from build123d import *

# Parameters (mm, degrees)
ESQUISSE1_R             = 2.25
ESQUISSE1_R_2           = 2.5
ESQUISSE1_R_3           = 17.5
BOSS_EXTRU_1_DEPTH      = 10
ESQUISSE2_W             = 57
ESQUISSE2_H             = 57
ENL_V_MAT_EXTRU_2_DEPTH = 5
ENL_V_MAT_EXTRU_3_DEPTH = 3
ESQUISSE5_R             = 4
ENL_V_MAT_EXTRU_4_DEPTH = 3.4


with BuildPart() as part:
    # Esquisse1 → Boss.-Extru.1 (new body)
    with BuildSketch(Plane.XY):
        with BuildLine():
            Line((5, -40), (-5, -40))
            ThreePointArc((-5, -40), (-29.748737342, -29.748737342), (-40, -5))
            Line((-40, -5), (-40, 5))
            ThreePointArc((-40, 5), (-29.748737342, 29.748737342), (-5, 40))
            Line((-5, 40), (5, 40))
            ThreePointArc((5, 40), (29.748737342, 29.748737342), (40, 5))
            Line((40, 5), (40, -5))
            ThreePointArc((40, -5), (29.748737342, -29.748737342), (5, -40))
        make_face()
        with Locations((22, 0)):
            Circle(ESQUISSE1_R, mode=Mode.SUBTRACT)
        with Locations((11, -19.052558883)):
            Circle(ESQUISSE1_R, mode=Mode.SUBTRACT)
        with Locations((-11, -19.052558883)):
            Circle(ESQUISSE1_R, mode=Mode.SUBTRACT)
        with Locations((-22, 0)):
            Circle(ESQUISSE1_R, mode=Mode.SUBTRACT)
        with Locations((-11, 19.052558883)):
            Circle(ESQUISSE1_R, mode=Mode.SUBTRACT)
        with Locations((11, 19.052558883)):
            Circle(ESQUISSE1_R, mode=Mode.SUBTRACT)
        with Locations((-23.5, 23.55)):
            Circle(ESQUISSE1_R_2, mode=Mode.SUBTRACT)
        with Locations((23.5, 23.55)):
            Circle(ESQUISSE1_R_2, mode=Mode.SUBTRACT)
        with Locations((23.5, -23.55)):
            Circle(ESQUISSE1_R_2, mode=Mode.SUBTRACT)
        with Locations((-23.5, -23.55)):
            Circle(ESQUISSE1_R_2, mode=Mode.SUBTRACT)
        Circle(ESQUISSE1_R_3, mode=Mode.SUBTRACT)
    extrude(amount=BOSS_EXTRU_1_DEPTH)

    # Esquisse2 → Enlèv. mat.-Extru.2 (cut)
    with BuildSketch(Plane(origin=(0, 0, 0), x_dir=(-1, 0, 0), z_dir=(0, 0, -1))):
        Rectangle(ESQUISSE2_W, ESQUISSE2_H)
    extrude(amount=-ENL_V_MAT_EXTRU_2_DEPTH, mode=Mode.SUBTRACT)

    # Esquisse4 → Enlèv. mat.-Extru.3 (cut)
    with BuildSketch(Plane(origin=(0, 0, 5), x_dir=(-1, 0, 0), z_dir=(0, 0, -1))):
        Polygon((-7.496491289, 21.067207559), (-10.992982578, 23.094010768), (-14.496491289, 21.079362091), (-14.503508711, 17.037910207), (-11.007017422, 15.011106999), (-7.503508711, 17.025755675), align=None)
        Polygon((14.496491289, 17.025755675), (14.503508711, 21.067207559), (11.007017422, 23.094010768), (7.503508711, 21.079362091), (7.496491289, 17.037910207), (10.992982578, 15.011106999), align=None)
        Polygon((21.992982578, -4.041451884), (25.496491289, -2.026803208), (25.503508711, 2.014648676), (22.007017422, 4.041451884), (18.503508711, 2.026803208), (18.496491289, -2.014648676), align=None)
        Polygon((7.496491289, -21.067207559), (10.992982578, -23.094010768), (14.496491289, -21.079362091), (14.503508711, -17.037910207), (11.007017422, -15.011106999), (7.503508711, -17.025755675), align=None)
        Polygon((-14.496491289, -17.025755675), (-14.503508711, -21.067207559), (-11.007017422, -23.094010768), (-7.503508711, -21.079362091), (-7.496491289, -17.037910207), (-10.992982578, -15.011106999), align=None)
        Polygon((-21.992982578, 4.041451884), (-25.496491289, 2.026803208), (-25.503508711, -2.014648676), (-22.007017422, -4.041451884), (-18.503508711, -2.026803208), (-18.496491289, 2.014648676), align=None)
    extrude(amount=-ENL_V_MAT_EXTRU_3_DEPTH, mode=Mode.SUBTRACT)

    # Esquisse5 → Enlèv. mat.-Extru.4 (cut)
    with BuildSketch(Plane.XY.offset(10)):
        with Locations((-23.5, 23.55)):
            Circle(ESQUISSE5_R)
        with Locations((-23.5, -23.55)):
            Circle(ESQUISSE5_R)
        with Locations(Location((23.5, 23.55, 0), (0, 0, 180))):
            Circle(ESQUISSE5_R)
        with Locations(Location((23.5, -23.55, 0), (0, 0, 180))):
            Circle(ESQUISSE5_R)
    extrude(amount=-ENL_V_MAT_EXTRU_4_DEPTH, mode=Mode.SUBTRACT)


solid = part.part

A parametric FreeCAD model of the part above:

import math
import FreeCAD as App
import Part
import Sketcher
Q = App.Units.Quantity


def add_polygon(sketch, points):
    """Adds a closed chain of lines whose ends are joined by coincident constraints."""
    first, n = sketch.GeometryCount, len(points)
    for a, b in zip(points, points[1:] + points[:1]):
        sketch.addGeometry(Part.LineSegment(App.Vector(*a, 0), App.Vector(*b, 0)), False)
    for i in range(n):
        sketch.addConstraint(Sketcher.Constraint("Coincident", first + i, 2, first + (i + 1) % n, 1))

doc = App.newDocument("Part")
body = doc.addObject("PartDesign::Body", "Body")

sketch1 = body.newObject("Sketcher::SketchObject", "Sketch")
sketch1.AttachmentSupport = (doc.getObject("XY_Plane"), [""])
sketch1.MapMode = "FlatFace"
sketch1.addGeometry([
    Part.LineSegment(App.Vector(-5, -40, 0), App.Vector(5, -40, 0)),
    Part.ArcOfCircle(Part.Circle(App.Vector(5, -5, 0), App.Vector(0, 0, 1), 35), math.radians(-90), math.radians(0)),
    Part.LineSegment(App.Vector(40, -5, 0), App.Vector(40, 5, 0)),
    Part.ArcOfCircle(Part.Circle(App.Vector(5, 5, 0), App.Vector(0, 0, 1), 35), math.radians(0), math.radians(90)),
    Part.LineSegment(App.Vector(5, 40, 0), App.Vector(-5, 40, 0)),
    Part.ArcOfCircle(Part.Circle(App.Vector(-5, 5, 0), App.Vector(0, 0, 1), 35), math.radians(90), math.radians(180)),
    Part.LineSegment(App.Vector(-40, 5, 0), App.Vector(-40, -5, 0)),
    Part.ArcOfCircle(Part.Circle(App.Vector(-5, -5, 0), App.Vector(0, 0, 1), 35), math.radians(180), math.radians(270)),
    Part.Circle(App.Vector(23.5, -23.6, 0), App.Vector(0, 0, 1), 2.5),
    Part.Circle(App.Vector(11, -19.1, 0), App.Vector(0, 0, 1), 2.2),
    Part.Circle(App.Vector(-11, -19.1, 0), App.Vector(0, 0, 1), 2.2),
    Part.Circle(App.Vector(-23.5, -23.6, 0), App.Vector(0, 0, 1), 2.5),
    Part.Circle(App.Vector(22, 0, 0), App.Vector(0, 0, 1), 2.2),
    Part.Circle(App.Vector(23.5, 23.6, 0), App.Vector(0, 0, 1), 2.5),
    Part.Circle(App.Vector(11, 19.1, 0), App.Vector(0, 0, 1), 2.2),
    Part.Circle(App.Vector(0, 0, 0), App.Vector(0, 0, 1), 17.5),
    Part.Circle(App.Vector(-22, 0, 0), App.Vector(0, 0, 1), 2.2),
    Part.Circle(App.Vector(-11, 19.1, 0), App.Vector(0, 0, 1), 2.2),
    Part.Circle(App.Vector(-23.5, 23.6, 0), App.Vector(0, 0, 1), 2.5),
], False)
sketch1.addConstraint([
    Sketcher.Constraint("Tangent", 0, 2, 1, 1),
    Sketcher.Constraint("Tangent", 1, 2, 2, 1),
    Sketcher.Constraint("Tangent", 2, 2, 3, 1),
    Sketcher.Constraint("Tangent", 3, 2, 4, 1),
    Sketcher.Constraint("Tangent", 4, 2, 5, 1),
    Sketcher.Constraint("Tangent", 5, 2, 6, 1),
    Sketcher.Constraint("Tangent", 6, 2, 7, 1),
    Sketcher.Constraint("Tangent", 7, 2, 0, 1),
    Sketcher.Constraint("Horizontal", 0),
    Sketcher.Constraint("Vertical", 2),
    Sketcher.Constraint("Horizontal", 4),
    Sketcher.Constraint("Vertical", 6),
    Sketcher.Constraint("Coincident", 15, 3, -1, 1),
    Sketcher.Constraint("Equal", 1, 3),
    Sketcher.Constraint("Equal", 3, 5),
    Sketcher.Constraint("Equal", 5, 7),
    Sketcher.Constraint("Equal", 9, 10),
    Sketcher.Constraint("Equal", 8, 11),
    Sketcher.Constraint("Equal", 10, 12),
    Sketcher.Constraint("Equal", 11, 13),
    Sketcher.Constraint("Equal", 12, 14),
    Sketcher.Constraint("Equal", 14, 16),
    Sketcher.Constraint("Equal", 16, 17),
    Sketcher.Constraint("Equal", 13, 18),
    Sketcher.Constraint("Symmetric", 1, 3, 5, 3, -1, 1),
    Sketcher.Constraint("Symmetric", 11, 3, 13, 3, -1, 1),
    Sketcher.Constraint("Symmetric", 10, 3, 14, 3, -1, 1),
    Sketcher.Constraint("Symmetric", 12, 3, 16, 3, -1, 1),
    Sketcher.Constraint("Symmetric", 9, 3, 17, 3, -1, 1),
    Sketcher.Constraint("Symmetric", 8, 3, 18, 3, -1, 1),
    Sketcher.Constraint("Symmetric", 9, 3, 10, 3, -2),
    Sketcher.Constraint("Symmetric", 8, 3, 11, 3, -2),
    Sketcher.Constraint("PointOnObject", 12, 3, -1),
    Sketcher.Constraint("Equal", 4, 2),
    Sketcher.Constraint("Diameter", 8, Q("5 mm")),
    Sketcher.Constraint("Diameter", 15, Q("35 mm")),
    Sketcher.Constraint("Radius", 1, Q("35 mm")),
    Sketcher.Constraint("Diameter", 9, Q("4.5 mm")),
    Sketcher.Constraint("DistanceX", 0, 1, 0, 2, Q("10 mm")),
    Sketcher.Constraint("DistanceX", -1, 1, 9, 3, Q("11 mm")),
    Sketcher.Constraint("DistanceX", -1, 1, 12, 3, Q("22 mm")),
    Sketcher.Constraint("DistanceX", -1, 1, 8, 3, Q("23.5 mm")),
    Sketcher.Constraint("DistanceY", 8, 3, -1, 1, Q("23.55 mm")),
    Sketcher.Constraint("DistanceY", 9, 3, -1, 1, Q("19.052559 mm")),
])
pad1 = body.newObject("PartDesign::Pad", "Pad")
pad1.Profile = sketch1
pad1.Length = 10

sketch2 = body.newObject("Sketcher::SketchObject", "Sketch001")
sketch2.AttachmentSupport = (doc.getObject("XY_Plane"), [""])
sketch2.MapMode = "FlatFace"
add_polygon(sketch2, [(28, 28), (28, -28), (-28, -28), (-28, 28)])
sketch2.addConstraint([
    Sketcher.Constraint("Vertical", 0),
    Sketcher.Constraint("Horizontal", 1),
    Sketcher.Constraint("Vertical", 2),
    Sketcher.Constraint("Horizontal", 3),
    Sketcher.Constraint("Symmetric", 0, 2, 2, 2, -1, 1),
    Sketcher.Constraint("Equal", 3, 0),
    Sketcher.Constraint("DistanceX", 1, 2, 1, 1, Q("57 mm")),
])
pocket1 = body.newObject("PartDesign::Pocket", "Pocket")
pocket1.Profile = sketch2
pocket1.Length = 5
pocket1.Reversed = True

sketch3 = body.newObject("Sketcher::SketchObject", "Sketch002")
sketch3.AttachmentSupport = (doc.getObject("XY_Plane"), [""])
sketch3.MapMode = "FlatFace"
sketch3.AttachmentOffset = App.Placement(App.Vector(0, 0, 5), App.Rotation())
add_polygon(sketch3, [(7.5, 21.1), (11, 23.1), (14.5, 21.1), (14.5, 17), (11, 15), (7.5, 17)])
add_polygon(sketch3, [(-14.5, 17), (-14.5, 21.1), (-11, 23.1), (-7.5, 21.1), (-7.5, 17), (-11, 15)])
add_polygon(sketch3, [(-22, -4), (-25.5, -2), (-25.5, 2), (-22, 4), (-18.5, 2), (-18.5, -2)])
add_polygon(sketch3, [(-7.5, -21.1), (-11, -23.1), (-14.5, -21.1), (-14.5, -17), (-11, -15), (-7.5, -17)])
add_polygon(sketch3, [(14.5, -17), (14.5, -21.1), (11, -23.1), (7.5, -21.1), (7.5, -17), (11, -15)])
add_polygon(sketch3, [(22, 4), (25.5, 2), (25.5, -2), (22, -4), (18.5, -2), (18.5, 2)])
sketch3.addConstraint([
    Sketcher.Constraint("Symmetric", 0, 2, 18, 2, -1, 1),
    Sketcher.Constraint("Symmetric", 1, 2, 19, 2, -1, 1),
    Sketcher.Constraint("Symmetric", 2, 2, 20, 2, -1, 1),
    Sketcher.Constraint("Symmetric", 3, 2, 21, 2, -1, 1),
    Sketcher.Constraint("Symmetric", 4, 2, 22, 2, -1, 1),
    Sketcher.Constraint("Symmetric", 5, 2, 23, 2, -1, 1),
    Sketcher.Constraint("Symmetric", 6, 2, 24, 2, -1, 1),
    Sketcher.Constraint("Symmetric", 7, 2, 25, 2, -1, 1),
    Sketcher.Constraint("Symmetric", 8, 2, 26, 2, -1, 1),
    Sketcher.Constraint("Symmetric", 9, 2, 27, 2, -1, 1),
    Sketcher.Constraint("Symmetric", 10, 2, 28, 2, -1, 1),
    Sketcher.Constraint("Symmetric", 11, 2, 29, 2, -1, 1),
    Sketcher.Constraint("Symmetric", 12, 2, 30, 2, -1, 1),
    Sketcher.Constraint("Symmetric", 13, 2, 31, 2, -1, 1),
    Sketcher.Constraint("Symmetric", 14, 2, 32, 2, -1, 1),
    Sketcher.Constraint("Symmetric", 15, 2, 33, 2, -1, 1),
    Sketcher.Constraint("Symmetric", 16, 2, 34, 2, -1, 1),
    Sketcher.Constraint("Symmetric", 17, 2, 35, 2, -1, 1),
    Sketcher.Constraint("Parallel", 0, 3),
    Sketcher.Constraint("Parallel", 1, 4),
    Sketcher.Constraint("Parallel", 2, 5),
    Sketcher.Constraint("Parallel", 5, 6),
    Sketcher.Constraint("Parallel", 3, 7),
    Sketcher.Constraint("Parallel", 4, 8),
    Sketcher.Constraint("Parallel", 6, 9),
    Sketcher.Constraint("Parallel", 7, 10),
    Sketcher.Constraint("Parallel", 8, 11),
    Sketcher.Constraint("Parallel", 11, 12),
    Sketcher.Constraint("Parallel", 9, 13),
    Sketcher.Constraint("Parallel", 10, 14),
    Sketcher.Constraint("Parallel", 12, 15),
    Sketcher.Constraint("Parallel", 13, 16),
    Sketcher.Constraint("Parallel", 14, 17),
    Sketcher.Constraint("Horizontal", 5, 2, 6, 2),
    Sketcher.Constraint("Horizontal", 0, 2, 7, 2),
    Sketcher.Constraint("Horizontal", 1, 2, 8, 2),
    Sketcher.Constraint("Horizontal", 2, 2, 9, 2),
    Sketcher.Constraint("Horizontal", 3, 2, 10, 2),
    Sketcher.Constraint("Horizontal", 15, 2, 30, 2),
    Sketcher.Constraint("Horizontal", 16, 2, 31, 2),
    Sketcher.Constraint("Vertical", 10, 2, 18, 2),
    Sketcher.Constraint("Vertical", 11, 2, 19, 2),
    Sketcher.Constraint("Equal", 0, 1),
    Sketcher.Constraint("Equal", 1, 2),
    Sketcher.Constraint("Equal", 11, 12),
    Sketcher.Constraint("Equal", 12, 13),
    Sketcher.Constraint("Equal", 13, 14),
    Sketcher.Constraint("DistanceX", 4, 2, 2, 2, Q("7 mm")),
    Sketcher.Constraint("DistanceX", 6, 2, 5, 2, Q("22 mm")),
    Sketcher.Constraint("DistanceX", 12, 2, 11, 2, Q("11 mm")),
    Sketcher.Constraint("DistanceY", 2, 2, 0, 2, Q("6.056101 mm")),
    Sketcher.Constraint("DistanceY", -1, 1, 0, 2, Q("23.094011 mm")),
    Sketcher.Constraint("DistanceX", -1, 1, 1, 2, Q("14.496491 mm")),
    Sketcher.Constraint("DistanceY", -1, 1, 13, 2, Q("2.014649 mm")),
])
pocket2 = body.newObject("PartDesign::Pocket", "Pocket001")
pocket2.Profile = sketch3
pocket2.Length = 3
pocket2.Reversed = True

sketch4 = body.newObject("Sketcher::SketchObject", "Sketch003")
sketch4.AttachmentSupport = (doc.getObject("XY_Plane"), [""])
sketch4.MapMode = "FlatFace"
sketch4.AttachmentOffset = App.Placement(App.Vector(0, 0, 10), App.Rotation())
sketch4.addGeometry([
    Part.Circle(App.Vector(-23.5, 23.6, 0), App.Vector(0, 0, 1), 4),
    Part.Circle(App.Vector(-23.5, -23.6, 0), App.Vector(0, 0, 1), 4),
    Part.Circle(App.Vector(23.5, 23.6, 0), App.Vector(0, 0, 1), 4),
    Part.Circle(App.Vector(23.5, -23.6, 0), App.Vector(0, 0, 1), 4),
], False)
sketch4.addConstraint([
    Sketcher.Constraint("Equal", 0, 1),
    Sketcher.Constraint("Equal", 1, 2),
    Sketcher.Constraint("Equal", 2, 3),
    Sketcher.Constraint("Symmetric", 1, 3, 2, 3, -1, 1),
    Sketcher.Constraint("Symmetric", 0, 3, 3, 3, -1, 1),
    Sketcher.Constraint("Symmetric", 0, 3, 2, 3, -2),
    Sketcher.Constraint("Diameter", 0, Q("8 mm")),
    Sketcher.Constraint("DistanceX", 0, 3, 2, 3, Q("47 mm")),
    Sketcher.Constraint("DistanceY", 1, 3, 0, 3, Q("47.1 mm")),
])
pocket3 = body.newObject("PartDesign::Pocket", "Pocket002")
pocket3.Profile = sketch4
pocket3.Length = 3.4

doc.recompute()
